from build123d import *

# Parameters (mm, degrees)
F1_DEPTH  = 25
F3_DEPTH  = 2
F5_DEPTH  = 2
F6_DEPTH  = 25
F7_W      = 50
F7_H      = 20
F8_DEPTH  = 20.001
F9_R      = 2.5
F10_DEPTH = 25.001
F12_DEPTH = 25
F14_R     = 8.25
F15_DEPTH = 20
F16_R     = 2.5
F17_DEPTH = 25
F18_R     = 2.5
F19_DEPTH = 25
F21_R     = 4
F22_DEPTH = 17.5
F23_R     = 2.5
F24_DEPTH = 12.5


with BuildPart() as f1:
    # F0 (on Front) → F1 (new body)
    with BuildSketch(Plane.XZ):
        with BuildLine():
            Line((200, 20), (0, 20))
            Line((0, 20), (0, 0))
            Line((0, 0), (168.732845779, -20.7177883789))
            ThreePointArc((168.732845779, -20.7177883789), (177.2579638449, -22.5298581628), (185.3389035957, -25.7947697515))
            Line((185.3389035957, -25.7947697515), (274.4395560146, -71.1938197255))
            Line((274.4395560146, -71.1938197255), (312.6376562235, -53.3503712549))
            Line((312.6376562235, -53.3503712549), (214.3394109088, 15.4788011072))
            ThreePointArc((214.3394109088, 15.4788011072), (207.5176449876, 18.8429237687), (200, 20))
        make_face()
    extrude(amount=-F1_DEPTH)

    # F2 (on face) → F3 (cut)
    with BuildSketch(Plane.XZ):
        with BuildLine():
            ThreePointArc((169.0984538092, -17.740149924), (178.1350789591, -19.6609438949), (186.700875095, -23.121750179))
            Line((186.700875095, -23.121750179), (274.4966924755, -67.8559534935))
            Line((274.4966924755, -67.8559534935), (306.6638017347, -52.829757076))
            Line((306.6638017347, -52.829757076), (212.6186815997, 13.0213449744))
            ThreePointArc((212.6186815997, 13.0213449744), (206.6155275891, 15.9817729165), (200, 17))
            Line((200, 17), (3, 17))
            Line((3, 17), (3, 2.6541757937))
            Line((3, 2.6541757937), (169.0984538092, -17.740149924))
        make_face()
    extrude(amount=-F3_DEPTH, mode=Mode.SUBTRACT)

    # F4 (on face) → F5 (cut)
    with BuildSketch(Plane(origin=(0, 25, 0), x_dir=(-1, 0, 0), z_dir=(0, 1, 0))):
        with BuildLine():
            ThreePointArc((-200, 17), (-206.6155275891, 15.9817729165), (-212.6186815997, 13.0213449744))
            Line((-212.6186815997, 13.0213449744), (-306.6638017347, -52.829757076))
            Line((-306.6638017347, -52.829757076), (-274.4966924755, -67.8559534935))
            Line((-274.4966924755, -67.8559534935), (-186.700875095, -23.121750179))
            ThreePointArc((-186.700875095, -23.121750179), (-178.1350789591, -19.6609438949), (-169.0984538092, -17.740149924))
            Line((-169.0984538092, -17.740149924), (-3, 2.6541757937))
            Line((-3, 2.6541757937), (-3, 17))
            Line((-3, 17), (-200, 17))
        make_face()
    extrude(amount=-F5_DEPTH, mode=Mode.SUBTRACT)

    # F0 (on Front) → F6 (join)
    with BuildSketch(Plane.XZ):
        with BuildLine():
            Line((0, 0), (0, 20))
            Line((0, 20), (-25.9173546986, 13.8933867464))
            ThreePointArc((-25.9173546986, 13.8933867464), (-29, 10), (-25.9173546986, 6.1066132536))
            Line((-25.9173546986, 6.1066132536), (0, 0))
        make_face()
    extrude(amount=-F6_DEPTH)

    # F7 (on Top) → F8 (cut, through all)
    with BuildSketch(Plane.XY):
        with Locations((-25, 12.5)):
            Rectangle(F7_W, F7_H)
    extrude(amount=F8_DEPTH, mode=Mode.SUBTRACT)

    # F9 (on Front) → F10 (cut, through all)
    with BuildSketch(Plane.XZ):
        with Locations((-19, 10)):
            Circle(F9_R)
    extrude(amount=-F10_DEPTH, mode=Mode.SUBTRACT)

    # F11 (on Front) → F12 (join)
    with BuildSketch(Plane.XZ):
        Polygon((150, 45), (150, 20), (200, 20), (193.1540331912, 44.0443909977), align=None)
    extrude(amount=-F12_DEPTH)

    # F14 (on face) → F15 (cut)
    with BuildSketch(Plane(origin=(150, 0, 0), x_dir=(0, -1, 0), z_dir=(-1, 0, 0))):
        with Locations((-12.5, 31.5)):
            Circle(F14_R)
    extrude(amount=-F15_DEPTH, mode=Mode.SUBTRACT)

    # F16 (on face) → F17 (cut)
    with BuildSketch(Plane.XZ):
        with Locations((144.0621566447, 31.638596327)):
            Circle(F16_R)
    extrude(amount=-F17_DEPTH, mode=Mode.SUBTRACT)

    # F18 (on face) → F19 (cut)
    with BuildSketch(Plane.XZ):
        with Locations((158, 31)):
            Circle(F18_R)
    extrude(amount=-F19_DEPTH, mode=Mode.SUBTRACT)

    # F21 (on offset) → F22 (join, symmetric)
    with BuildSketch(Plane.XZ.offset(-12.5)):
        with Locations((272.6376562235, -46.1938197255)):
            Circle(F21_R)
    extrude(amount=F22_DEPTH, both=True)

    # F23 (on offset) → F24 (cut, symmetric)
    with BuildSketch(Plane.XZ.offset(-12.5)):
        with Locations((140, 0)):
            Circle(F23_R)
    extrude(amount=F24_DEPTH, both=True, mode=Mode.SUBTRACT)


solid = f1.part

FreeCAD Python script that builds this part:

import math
import FreeCAD as App
import Part
import Sketcher
from FreeCAD import Vector
Q = App.Units.Quantity


def add_polygon(sketch, points):
    """Adds a closed chain of lines whose ends are joined by coincident constraints."""
    first, n = sketch.GeometryCount, len(points)
    for a, b in zip(points, points[1:] + points[:1]):
        sketch.addGeometry(Part.LineSegment(App.Vector(*a, 0), App.Vector(*b, 0)), False)
    for i in range(n):
        sketch.addConstraint(Sketcher.Constraint("Coincident", first + i, 2, first + (i + 1) % n, 1))

doc = App.newDocument("Part")
params = doc.addObject("Spreadsheet::Sheet", "Params")
for row, (alias, value) in enumerate([
    ("sketch1_radius", "50 mm"),
    ("sketch1_radius2", "25 mm"),
    ("sketch1_width", "200 mm"),
    ("sketch1_height", "20 mm"),
    ("sketch1_length", "170 mm"),
    ("pad1_length", "25 mm"),
    ("sketch2_radius", "53 mm"),
    ("sketch2_radius2", "22 mm"),
    ("sketch2_width", "197 mm"),
    ("pocket1_length", "2 mm"),
    ("sketch3_radius", "22 mm"),
    ("sketch3_radius2", "53 mm"),
    ("sketch3_width", "197 mm"),
    ("pocket2_length", "2 mm"),
    ("sketch4_radius", "4 mm"),
    ("sketch4_height", "20 mm"),
    ("pad2_length", "25 mm"),
    ("sketch5_width", "50 mm"),
    ("sketch5_height", "20 mm"),
    ("sketch6_diameter", "5 mm"),
    ("sketch7_width", "50 mm"),
    ("sketch7_height", "25 mm"),
    ("sketch7_length", "25 mm"),
    ("pad3_length", "25 mm"),
    ("sketch8_diameter", "16.5 mm"),
    ("pocket5_length", "20 mm"),
    ("sketch9_diameter", "5 mm"),
    ("pocket6_length", "25 mm"),
    ("sketch10_diameter", "5 mm"),
    ("pocket7_length", "25 mm"),
    ("sketch11_diameter", "8 mm"),
    ("pad4_length", "35 mm"),
    ("sketch12_diameter", "5 mm"),
    ("pocket8_length", "25 mm"),
], start=1):
    params.set(f"A{row}", alias)
    params.set(f"B{row}", "=" + value)
    params.setAlias(f"B{row}", alias)

body = doc.addObject("PartDesign::Body", "Body")

sketch1 = body.newObject("Sketcher::SketchObject", "Sketch")
sketch1.AttachmentSupport = (doc.getObject("XZ_Plane"), [""])
sketch1.MapMode = "FlatFace"
sketch1.addGeometry([
    Part.LineSegment(Vector(200, 20, 0), Vector(0, 20, 0)),
    Part.LineSegment(Vector(0, 20, 0), Vector(0, 0, 0)),
    Part.LineSegment(Vector(0, 0, 0), Vector(169, -21, 0)),
    Part.ArcOfCircle(Part.Circle(Vector(163, -70, 0), Vector(0, 0, 1), 50), math.radians(63), math.radians(83)),
    Part.LineSegment(Vector(185, -26, 0), Vector(274, -71, 0)),
    Part.LineSegment(Vector(274, -71, 0), Vector(313, -53, 0)),
    Part.LineSegment(Vector(313, -53, 0), Vector(214, 15, 0)),
    Part.ArcOfCircle(Part.Circle(Vector(200, -5, 0), Vector(0, 0, 1), 25), math.radians(55), math.radians(90)),
], False)
sketch1.addConstraint([
    Sketcher.Constraint("Coincident", 0, 2, 1, 1),
    Sketcher.Constraint("Coincident", 1, 2, 2, 1),
    Sketcher.Constraint("Tangent", 2, 2, 3, 2),
    Sketcher.Constraint("Tangent", 3, 1, 4, 1),
    Sketcher.Constraint("Coincident", 4, 2, 5, 1),
    Sketcher.Constraint("Coincident", 5, 2, 6, 1),
    Sketcher.Constraint("Tangent", 6, 2, 7, 1),
    Sketcher.Constraint("Tangent", 7, 2, 0, 1),
    Sketcher.Constraint("Horizontal", 0),
    Sketcher.Constraint("Vertical", 1),
    Sketcher.Constraint("Coincident", 1, 2, -1, 1),
    Sketcher.Constraint("Radius", 3, Q("50 mm")),
    Sketcher.Constraint("Radius", 7, Q("25 mm")),
    Sketcher.Constraint("DistanceX", 0, 2, 0, 1, Q("200 mm")),
    Sketcher.Constraint("DistanceY", 1, 2, 1, 1, Q("20 mm")),
    Sketcher.Constraint("Angle", 2, Q("-7 deg")),
    Sketcher.Constraint("Angle", 4, Q("-27 deg")),
    Sketcher.Constraint("Angle", 6, Q("145 deg")),
    Sketcher.Constraint("Distance", 2, Q("170 mm")),
    Sketcher.Constraint("Distance", 4, Q("100 mm")),
    Sketcher.Constraint("Distance", 6, Q("120 mm")),
])
sketch1.setExpression("Constraints[11]", "Params.sketch1_radius")
sketch1.setExpression("Constraints[12]", "Params.sketch1_radius2")
sketch1.setExpression("Constraints[13]", "Params.sketch1_width")
sketch1.setExpression("Constraints[14]", "Params.sketch1_height")
sketch1.setExpression("Constraints[18]", "Params.sketch1_length")
pad1 = body.newObject("PartDesign::Pad", "Pad")
pad1.Profile = sketch1
pad1.setExpression("Length", "Params.pad1_length")
pad1.Reversed = True

sketch2 = body.newObject("Sketcher::SketchObject", "Sketch001")
sketch2.AttachmentSupport = (doc.getObject("XZ_Plane"), [""])
sketch2.MapMode = "FlatFace"
sketch2.addGeometry([
    Part.ArcOfCircle(Part.Circle(Vector(163, -70, 0), Vector(0, 0, 1), 53), math.radians(63), math.radians(83)),
    Part.LineSegment(Vector(187, -23, 0), Vector(274, -68, 0)),
    Part.LineSegment(Vector(274, -68, 0), Vector(307, -53, 0)),
    Part.LineSegment(Vector(307, -53, 0), Vector(213, 13, 0)),
    Part.ArcOfCircle(Part.Circle(Vector(200, -5, 0), Vector(0, 0, 1), 22), math.radians(55), math.radians(90)),
    Part.LineSegment(Vector(200, 17, 0), Vector(3, 17, 0)),
    Part.LineSegment(Vector(3, 17, 0), Vector(3, 3, 0)),
    Part.LineSegment(Vector(3, 3, 0), Vector(169, -18, 0)),
], False)
sketch2.addConstraint([
    Sketcher.Constraint("Tangent", 0, 1, 1, 1),
    Sketcher.Constraint("Coincident", 1, 2, 2, 1),
    Sketcher.Constraint("Coincident", 2, 2, 3, 1),
    Sketcher.Constraint("Tangent", 3, 2, 4, 1),
    Sketcher.Constraint("Tangent", 4, 2, 5, 1),
    Sketcher.Constraint("Coincident", 5, 2, 6, 1),
    Sketcher.Constraint("Coincident", 6, 2, 7, 1),
    Sketcher.Constraint("Tangent", 7, 2, 0, 2),
    Sketcher.Constraint("Horizontal", 5),
    Sketcher.Constraint("Vertical", 6),
    Sketcher.Constraint("Radius", 0, Q("53 mm")),
    Sketcher.Constraint("Radius", 4, Q("22 mm")),
    Sketcher.Constraint("DistanceX", 5, 2, 5, 1, Q("197 mm")),
    Sketcher.Constraint("Angle", 1, Q("-27 deg")),
    Sketcher.Constraint("Angle", 3, Q("145 deg")),
    Sketcher.Constraint("Angle", 7, Q("-7 deg")),
    Sketcher.Constraint("DistanceX", -1, 1, 4, 3, Q("200 mm")),
    Sketcher.Constraint("DistanceY", 4, 3, -1, 1, Q("5 mm")),
    Sketcher.Constraint("DistanceX", -1, 1, 2, 2, Q("306.663802 mm")),
    Sketcher.Constraint("DistanceY", 1, 2, 3, 2, Q("80.877298 mm")),
    Sketcher.Constraint("Distance", 1, Q("98.535549 mm")),
    Sketcher.Constraint("DistanceY", 6, 2, 6, 1, Q("14.345824 mm")),
])
sketch2.setExpression("Constraints[10]", "Params.sketch2_radius")
sketch2.setExpression("Constraints[11]", "Params.sketch2_radius2")
sketch2.setExpression("Constraints[12]", "Params.sketch2_width")
pocket1 = body.newObject("PartDesign::Pocket", "Pocket")
pocket1.Profile = sketch2
pocket1.setExpression("Length", "Params.pocket1_length")

sketch3 = body.newObject("Sketcher::SketchObject", "Sketch002")
sketch3.AttachmentSupport = (doc.getObject("XZ_Plane"), [""])
sketch3.MapMode = "FlatFace"
sketch3.AttachmentOffset = App.Placement(Vector(0, 0, -25), App.Rotation())
sketch3.addGeometry([
    Part.ArcOfCircle(Part.Circle(Vector(200, -5, 0), Vector(0, 0, 1), 22), math.radians(55), math.radians(90)),
    Part.LineSegment(Vector(213, 13, 0), Vector(307, -53, 0)),
    Part.LineSegment(Vector(307, -53, 0), Vector(274, -68, 0)),
    Part.LineSegment(Vector(274, -68, 0), Vector(187, -23, 0)),
    Part.ArcOfCircle(Part.Circle(Vector(163, -70, 0), Vector(0, 0, 1), 53), math.radians(63), math.radians(83)),
    Part.LineSegment(Vector(169, -18, 0), Vector(3, 3, 0)),
    Part.LineSegment(Vector(3, 3, 0), Vector(3, 17, 0)),
    Part.LineSegment(Vector(3, 17, 0), Vector(200, 17, 0)),
], False)
sketch3.addConstraint([
    Sketcher.Constraint("Tangent", 0, 1, 1, 1),
    Sketcher.Constraint("Coincident", 1, 2, 2, 1),
    Sketcher.Constraint("Coincident", 2, 2, 3, 1),
    Sketcher.Constraint("Tangent", 3, 2, 4, 1),
    Sketcher.Constraint("Tangent", 4, 2, 5, 1),
    Sketcher.Constraint("Coincident", 5, 2, 6, 1),
    Sketcher.Constraint("Coincident", 6, 2, 7, 1),
    Sketcher.Constraint("Tangent", 7, 2, 0, 2),
    Sketcher.Constraint("Vertical", 6),
    Sketcher.Constraint("Horizontal", 7),
    Sketcher.Constraint("Radius", 0, Q("22 mm")),
    Sketcher.Constraint("Radius", 4, Q("53 mm")),
    Sketcher.Constraint("DistanceX", 7, 1, 7, 2, Q("197 mm")),
    Sketcher.Constraint("Angle", 1, Q("-35 deg")),
    Sketcher.Constraint("Angle", 3, Q("153 deg")),
    Sketcher.Constraint("Angle", 5, Q("173 deg")),
    Sketcher.Constraint("DistanceX", -1, 1, 0, 3, Q("200 mm")),
    Sketcher.Constraint("DistanceY", 0, 3, -1, 1, Q("5 mm")),
    Sketcher.Constraint("DistanceX", -1, 1, 1, 2, Q("306.663802 mm")),
    Sketcher.Constraint("DistanceY", 2, 2, 0, 1, Q("80.877298 mm")),
    Sketcher.Constraint("Distance", 3, Q("98.535549 mm")),
    Sketcher.Constraint("DistanceY", 6, 1, 6, 2, Q("14.345824 mm")),
])
sketch3.setExpression("Constraints[10]", "Params.sketch3_radius")
sketch3.setExpression("Constraints[11]", "Params.sketch3_radius2")
sketch3.setExpression("Constraints[12]", "Params.sketch3_width")
pocket2 = body.newObject("PartDesign::Pocket", "Pocket001")
pocket2.Profile = sketch3
pocket2.setExpression("Length", "Params.pocket2_length")
pocket2.Reversed = True

sketch4 = body.newObject("Sketcher::SketchObject", "Sketch003")
sketch4.AttachmentSupport = (doc.getObject("XZ_Plane"), [""])
sketch4.MapMode = "FlatFace"
sketch4.addGeometry([
    Part.LineSegment(Vector(0, 0, 0), Vector(0, 20, 0)),
    Part.LineSegment(Vector(0, 20, 0), Vector(-25.9, 13.9, 0)),
    Part.ArcOfCircle(Part.Circle(Vector(-25, 10, 0), Vector(0, 0, 1), 4), math.radians(103), math.radians(257)),
    Part.LineSegment(Vector(-25.9, 6.1, 0), Vector(0, 0, 0)),
], False)
sketch4.addConstraint([
    Sketcher.Constraint("Coincident", 0, 2, 1, 1),
    Sketcher.Constraint("Tangent", 1, 2, 2, 1),
    Sketcher.Constraint("Tangent", 2, 2, 3, 1),
    Sketcher.Constraint("Coincident", 3, 2, 0, 1),
    Sketcher.Constraint("Vertical", 0),
    Sketcher.Constraint("Coincident", 3, 2, -1, 1),
    Sketcher.Constraint("Vertical", 1, 2, 2, 2),
    Sketcher.Constraint("Radius", 2, Q("4 mm")),
    Sketcher.Constraint("DistanceY", 0, 1, 0, 2, Q("20 mm")),
    Sketcher.Constraint("DistanceX", 2, 3, -1, 1, Q("25 mm")),
])
sketch4.setExpression("Constraints[7]", "Params.sketch4_radius")
sketch4.setExpression("Constraints[8]", "Params.sketch4_height")
pad2 = body.newObject("PartDesign::Pad", "Pad001")
pad2.Profile = sketch4
pad2.setExpression("Length", "Params.pad2_length")
pad2.Reversed = True

sketch5 = body.newObject("Sketcher::SketchObject", "Sketch004")
sketch5.AttachmentSupport = (doc.getObject("XY_Plane"), [""])
sketch5.MapMode = "FlatFace"
add_polygon(sketch5, [(-50, 22), (-50, 2), (0, 2), (0, 22)])
sketch5.addConstraint([
    Sketcher.Constraint("Vertical", 0),
    Sketcher.Constraint("Horizontal", 1),
    Sketcher.Constraint("Vertical", 2),
    Sketcher.Constraint("Horizontal", 3),
    Sketcher.Constraint("PointOnObject", 1, 2, -2),
    Sketcher.Constraint("DistanceX", 1, 1, 1, 2, Q("50 mm")),
    Sketcher.Constraint("DistanceY", 0, 2, 0, 1, Q("20 mm")),
    Sketcher.Constraint("DistanceY", -1, 1, 0, 2, Q("2.5 mm")),
])
sketch5.setExpression("Constraints[9]", "Params.sketch5_width")
sketch5.setExpression("Constraints[10]", "Params.sketch5_height")
pocket3 = body.newObject("PartDesign::Pocket", "Pocket002")
pocket3.Profile = sketch5
pocket3.Type = "ThroughAll"
pocket3.Reversed = True

sketch6 = body.newObject("Sketcher::SketchObject", "Sketch005")
sketch6.AttachmentSupport = (doc.getObject("XZ_Plane"), [""])
sketch6.MapMode = "FlatFace"
sketch6.addGeometry(Part.Circle(Vector(-19, 10, 0), Vector(0, 0, 1), 2.5), False)
sketch6.addConstraint([
    Sketcher.Constraint("Diameter", 0, Q("5 mm")),
    Sketcher.Constraint("DistanceX", 0, 3, -1, 1, Q("19 mm")),
    Sketcher.Constraint("DistanceY", -1, 1, 0, 3, Q("10 mm")),
])
sketch6.setExpression("Constraints[0]", "Params.sketch6_diameter")
pocket4 = body.newObject("PartDesign::Pocket", "Pocket003")
pocket4.Profile = sketch6
pocket4.Type = "ThroughAll"

sketch7 = body.newObject("Sketcher::SketchObject", "Sketch006")
sketch7.AttachmentSupport = (doc.getObject("XZ_Plane"), [""])
sketch7.MapMode = "FlatFace"
add_polygon(sketch7, [(150, 45), (150, 20), (200, 20), (193, 44)])
sketch7.addConstraint([
    Sketcher.Constraint("Vertical", 0),
    Sketcher.Constraint("Horizontal", 1),
    Sketcher.Constraint("DistanceX", 1, 1, 1, 2, Q("50 mm")),
    Sketcher.Constraint("DistanceY", 0, 2, 0, 1, Q("25 mm")),
    Sketcher.Constraint("Distance", 2, Q("25 mm")),
    Sketcher.Constraint("DistanceX", -1, 1, 0, 2, Q("150 mm")),
    Sketcher.Constraint("DistanceY", -1, 1, 0, 2, Q("20 mm")),
    Sketcher.Constraint("DistanceY", -1, 1, 2, 2, Q("44.044391 mm")),
])
sketch7.setExpression("Constraints[6]", "Params.sketch7_width")
sketch7.setExpression("Constraints[7]", "Params.sketch7_height")
sketch7.setExpression("Constraints[8]", "Params.sketch7_length")
pad3 = body.newObject("PartDesign::Pad", "Pad002")
pad3.Profile = sketch7
pad3.setExpression("Length", "Params.pad3_length")
pad3.Reversed = True

sketch8 = body.newObject("Sketcher::SketchObject", "Sketch007")
sketch8.AttachmentSupport = (doc.getObject("YZ_Plane"), [""])
sketch8.MapMode = "FlatFace"
sketch8.AttachmentOffset = App.Placement(Vector(0, 0, 150), App.Rotation())
sketch8.addGeometry(Part.Circle(Vector(12, 32, 0), Vector(0, 0, 1), 8), False)
sketch8.addConstraint([
    Sketcher.Constraint("Diameter", 0, Q("16.5 mm")),
    Sketcher.Constraint("DistanceX", -1, 1, 0, 3, Q("12.5 mm")),
    Sketcher.Constraint("DistanceY", -1, 1, 0, 3, Q("31.5 mm")),
])
sketch8.setExpression("Constraints[0]", "Params.sketch8_diameter")
pocket5 = body.newObject("PartDesign::Pocket", "Pocket004")
pocket5.Profile = sketch8
pocket5.setExpression("Length", "Params.pocket5_length")
pocket5.Reversed = True

sketch9 = body.newObject("Sketcher::SketchObject", "Sketch008")
sketch9.AttachmentSupport = (doc.getObject("XZ_Plane"), [""])
sketch9.MapMode = "FlatFace"
sketch9.addGeometry(Part.Circle(Vector(144.1, 31.6, 0), Vector(0, 0, 1), 2.5), False)
sketch9.addConstraint([
    Sketcher.Constraint("Diameter", 0, Q("5 mm")),
    Sketcher.Constraint("DistanceX", -1, 1, 0, 3, Q("144.062157 mm")),
    Sketcher.Constraint("DistanceY", -1, 1, 0, 3, Q("31.638596 mm")),
])
sketch9.setExpression("Constraints[0]", "Params.sketch9_diameter")
pocket6 = body.newObject("PartDesign::Pocket", "Pocket005")
pocket6.Profile = sketch9
pocket6.setExpression("Length", "Params.pocket6_length")

sketch10 = body.newObject("Sketcher::SketchObject", "Sketch009")
sketch10.AttachmentSupport = (doc.getObject("XZ_Plane"), [""])
sketch10.MapMode = "FlatFace"
sketch10.addGeometry(Part.Circle(Vector(158, 31, 0), Vector(0, 0, 1), 2.5), False)
sketch10.addConstraint([
    Sketcher.Constraint("Diameter", 0, Q("5 mm")),
    Sketcher.Constraint("DistanceX", -1, 1, 0, 3, Q("158 mm")),
    Sketcher.Constraint("DistanceY", -1, 1, 0, 3, Q("31 mm")),
])
sketch10.setExpression("Constraints[0]", "Params.sketch10_diameter")
pocket7 = body.newObject("PartDesign::Pocket", "Pocket006")
pocket7.Profile = sketch10
pocket7.setExpression("Length", "Params.pocket7_length")

sketch11 = body.newObject("Sketcher::SketchObject", "Sketch010")
sketch11.AttachmentSupport = (doc.getObject("XZ_Plane"), [""])
sketch11.MapMode = "FlatFace"
sketch11.AttachmentOffset = App.Placement(Vector(0, 0, -12.5), App.Rotation())
sketch11.addGeometry(Part.Circle(Vector(272.6, -46.2, 0), Vector(0, 0, 1), 4), False)
sketch11.addConstraint([
    Sketcher.Constraint("Diameter", 0, Q("8 mm")),
    Sketcher.Constraint("DistanceY", 0, 3, -1, 1, Q("46.19382 mm")),
    Sketcher.Constraint("DistanceX", -1, 1, 0, 3, Q("272.637656 mm")),
])
sketch11.setExpression("Constraints[0]", "Params.sketch11_diameter")
pad4 = body.newObject("PartDesign::Pad", "Pad003")
pad4.Profile = sketch11
pad4.setExpression("Length", "Params.pad4_length")
pad4.Midplane = True

sketch12 = body.newObject("Sketcher::SketchObject", "Sketch011")
sketch12.AttachmentSupport = (doc.getObject("XZ_Plane"), [""])
sketch12.MapMode = "FlatFace"
sketch12.AttachmentOffset = App.Placement(Vector(0, 0, -12.5), App.Rotation())
sketch12.addGeometry(Part.Circle(Vector(140, 0, 0), Vector(0, 0, 1), 2.5), False)
sketch12.addConstraint([
    Sketcher.Constraint("PointOnObject", 0, 3, -1),
    Sketcher.Constraint("Diameter", 0, Q("5 mm")),
    Sketcher.Constraint("DistanceX", -1, 1, 0, 3, Q("140 mm")),
])
sketch12.setExpression("Constraints[1]", "Params.sketch12_diameter")
pocket8 = body.newObject("PartDesign::Pocket", "Pocket007")
pocket8.Profile = sketch12
pocket8.setExpression("Length", "Params.pocket8_length")
pocket8.Midplane = True

doc.recompute()
